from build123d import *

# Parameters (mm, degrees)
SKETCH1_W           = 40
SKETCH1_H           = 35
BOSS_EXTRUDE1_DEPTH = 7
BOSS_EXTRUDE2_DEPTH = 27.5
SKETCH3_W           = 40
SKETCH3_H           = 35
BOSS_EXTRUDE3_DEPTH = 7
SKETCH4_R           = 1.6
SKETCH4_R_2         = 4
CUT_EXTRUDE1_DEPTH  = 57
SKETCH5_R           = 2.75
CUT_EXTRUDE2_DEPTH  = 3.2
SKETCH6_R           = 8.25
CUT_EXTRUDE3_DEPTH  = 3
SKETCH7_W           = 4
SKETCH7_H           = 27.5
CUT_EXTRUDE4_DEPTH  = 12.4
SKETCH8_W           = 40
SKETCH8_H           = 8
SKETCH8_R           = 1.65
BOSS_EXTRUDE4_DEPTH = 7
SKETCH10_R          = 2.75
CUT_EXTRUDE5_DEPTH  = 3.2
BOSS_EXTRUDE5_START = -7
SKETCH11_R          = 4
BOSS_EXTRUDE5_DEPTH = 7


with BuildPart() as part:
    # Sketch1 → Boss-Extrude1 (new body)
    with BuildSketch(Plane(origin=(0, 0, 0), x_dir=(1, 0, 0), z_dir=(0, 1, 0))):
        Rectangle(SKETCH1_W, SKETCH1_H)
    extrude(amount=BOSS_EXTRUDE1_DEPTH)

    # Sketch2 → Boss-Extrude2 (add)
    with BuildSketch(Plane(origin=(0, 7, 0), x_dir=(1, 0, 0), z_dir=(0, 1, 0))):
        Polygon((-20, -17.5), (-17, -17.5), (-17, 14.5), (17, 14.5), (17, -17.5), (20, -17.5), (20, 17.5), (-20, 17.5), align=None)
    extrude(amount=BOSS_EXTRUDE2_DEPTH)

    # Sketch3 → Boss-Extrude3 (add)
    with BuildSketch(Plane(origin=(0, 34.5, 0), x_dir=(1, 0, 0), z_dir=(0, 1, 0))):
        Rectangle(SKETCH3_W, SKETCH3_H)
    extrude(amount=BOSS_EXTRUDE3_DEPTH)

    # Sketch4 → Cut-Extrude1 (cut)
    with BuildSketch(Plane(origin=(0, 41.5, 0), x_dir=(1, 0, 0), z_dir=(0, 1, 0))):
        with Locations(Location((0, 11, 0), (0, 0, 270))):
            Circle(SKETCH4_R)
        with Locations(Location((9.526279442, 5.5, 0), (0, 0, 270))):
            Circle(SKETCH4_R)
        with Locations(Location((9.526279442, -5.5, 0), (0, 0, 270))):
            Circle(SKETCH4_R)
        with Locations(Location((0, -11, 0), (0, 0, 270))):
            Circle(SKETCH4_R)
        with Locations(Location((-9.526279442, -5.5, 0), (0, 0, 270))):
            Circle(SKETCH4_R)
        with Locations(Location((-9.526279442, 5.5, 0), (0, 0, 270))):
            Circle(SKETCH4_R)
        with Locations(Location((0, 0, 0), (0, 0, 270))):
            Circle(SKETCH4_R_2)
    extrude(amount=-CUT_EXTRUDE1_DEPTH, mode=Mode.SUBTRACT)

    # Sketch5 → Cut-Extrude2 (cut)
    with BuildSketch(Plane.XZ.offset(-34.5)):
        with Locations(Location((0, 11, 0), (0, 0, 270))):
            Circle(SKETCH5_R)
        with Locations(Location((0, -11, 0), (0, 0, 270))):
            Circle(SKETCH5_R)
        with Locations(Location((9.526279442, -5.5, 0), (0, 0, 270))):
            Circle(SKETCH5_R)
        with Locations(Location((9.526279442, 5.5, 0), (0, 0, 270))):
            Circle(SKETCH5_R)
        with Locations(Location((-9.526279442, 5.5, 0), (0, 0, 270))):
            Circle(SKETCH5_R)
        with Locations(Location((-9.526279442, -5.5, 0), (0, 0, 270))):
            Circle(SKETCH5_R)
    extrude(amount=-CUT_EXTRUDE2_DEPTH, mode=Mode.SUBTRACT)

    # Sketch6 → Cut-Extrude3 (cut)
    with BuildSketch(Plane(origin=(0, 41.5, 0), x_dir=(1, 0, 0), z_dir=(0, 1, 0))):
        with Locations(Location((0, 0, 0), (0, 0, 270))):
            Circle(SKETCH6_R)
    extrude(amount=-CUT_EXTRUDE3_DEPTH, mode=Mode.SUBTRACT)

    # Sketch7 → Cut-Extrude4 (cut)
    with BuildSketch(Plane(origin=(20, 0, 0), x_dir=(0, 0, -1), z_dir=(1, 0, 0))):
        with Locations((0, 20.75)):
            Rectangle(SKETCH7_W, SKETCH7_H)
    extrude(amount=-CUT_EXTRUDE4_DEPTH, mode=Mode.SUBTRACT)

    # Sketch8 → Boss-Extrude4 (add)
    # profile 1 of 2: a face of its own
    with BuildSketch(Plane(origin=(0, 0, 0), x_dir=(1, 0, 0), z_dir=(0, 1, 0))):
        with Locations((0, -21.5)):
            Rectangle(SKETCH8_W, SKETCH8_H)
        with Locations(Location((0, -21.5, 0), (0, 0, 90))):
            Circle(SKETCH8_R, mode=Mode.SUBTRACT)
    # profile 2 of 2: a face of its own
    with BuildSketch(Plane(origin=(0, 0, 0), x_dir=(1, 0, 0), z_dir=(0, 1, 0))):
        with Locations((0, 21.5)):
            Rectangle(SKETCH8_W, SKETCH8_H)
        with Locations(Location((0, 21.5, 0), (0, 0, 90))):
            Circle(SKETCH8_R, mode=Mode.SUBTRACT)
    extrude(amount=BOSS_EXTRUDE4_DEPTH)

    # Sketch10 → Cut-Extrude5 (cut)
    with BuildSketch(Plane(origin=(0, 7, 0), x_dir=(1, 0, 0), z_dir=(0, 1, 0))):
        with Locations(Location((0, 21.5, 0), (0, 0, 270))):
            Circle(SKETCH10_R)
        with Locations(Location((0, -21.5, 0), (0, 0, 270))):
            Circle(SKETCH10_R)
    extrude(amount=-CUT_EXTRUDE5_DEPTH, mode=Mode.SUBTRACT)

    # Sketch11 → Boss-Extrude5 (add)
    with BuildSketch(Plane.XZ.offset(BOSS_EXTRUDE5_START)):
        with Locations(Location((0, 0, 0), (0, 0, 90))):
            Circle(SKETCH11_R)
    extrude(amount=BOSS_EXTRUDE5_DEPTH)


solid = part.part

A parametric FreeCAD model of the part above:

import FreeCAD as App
import Part
import Sketcher

V = App.Vector


def add_polygon(sketch, points):
    """Adds a closed chain of lines whose ends are joined by coincident constraints."""
    first, n = sketch.GeometryCount, len(points)
    for a, b in zip(points, points[1:] + points[:1]):
        sketch.addGeometry(Part.LineSegment(App.Vector(*a, 0), App.Vector(*b, 0)), False)
    for i in range(n):
        sketch.addConstraint(Sketcher.Constraint("Coincident", first + i, 2, first + (i + 1) % n, 1))

doc = App.newDocument("Part")
body = doc.addObject("PartDesign::Body", "Body")

# Sketch on XZ plane
sketch1 = body.newObject("Sketcher::SketchObject", "Sketch")
sketch1.AttachmentSupport = (doc.getObject("XZ_Plane"), [""])
sketch1.MapMode = "FlatFace"
add_polygon(sketch1, [(-20, -18), (-20, 18), (20, 18), (20, -18)])  # lines 0-3
sketch1.addConstraint([
    Sketcher.Constraint("Vertical", 0),
    Sketcher.Constraint("Horizontal", 1),
    Sketcher.Constraint("Vertical", 2),
    Sketcher.Constraint("Horizontal", 3),
    Sketcher.Constraint("Symmetric", 0, 2, 2, 2, -1, 1),
    Sketcher.Constraint("DistanceX", 1, 1, 1, 2, 40.0),
    Sketcher.Constraint("DistanceY", 0, 1, 0, 2, 35.0),
])
pad1 = body.newObject("PartDesign::Pad", "Pad")
pad1.Profile = sketch1
pad1.Length = 7
pad1.Reversed = True

# Sketch on XZ plane
sketch2 = body.newObject("Sketcher::SketchObject", "Sketch001")
sketch2.AttachmentSupport = (doc.getObject("XZ_Plane"), [""])
sketch2.MapMode = "FlatFace"
sketch2.AttachmentOffset = App.Placement(V(0, 0, -7), App.Rotation())
add_polygon(sketch2, [(-20, 17.5), (-17, 17.5), (-17, -14.5), (17, -14.5), (17, 17.5), (20, 17.5), (20, -17.5), (-20, -17.5)])  # lines 0-7
sketch2.addConstraint([
    Sketcher.Constraint("Horizontal", 0),
    Sketcher.Constraint("Vertical", 1),
    Sketcher.Constraint("Horizontal", 2),
    Sketcher.Constraint("Vertical", 3),
    Sketcher.Constraint("Horizontal", 4),
    Sketcher.Constraint("Vertical", 5),
    Sketcher.Constraint("Horizontal", 6),
    Sketcher.Constraint("Vertical", 7),
    Sketcher.Constraint("Symmetric", 4, 2, 6, 2, -1, 1),
    Sketcher.Constraint("Symmetric", 0, 2, 3, 2, -2),
    Sketcher.Constraint("DistanceX", 0, 1, 0, 2, 3.0),
    Sketcher.Constraint("DistanceX", 2, 1, 2, 2, 34.0),
    Sketcher.Constraint("DistanceY", 1, 2, 1, 1, 32.0),
    Sketcher.Constraint("DistanceY", 5, 2, 5, 1, 35.0),
])
pad2 = body.newObject("PartDesign::Pad", "Pad001")
pad2.Profile = sketch2
pad2.Length = 27.5
pad2.Reversed = True

# Sketch on XZ plane
sketch3 = body.newObject("Sketcher::SketchObject", "Sketch002")
sketch3.AttachmentSupport = (doc.getObject("XZ_Plane"), [""])
sketch3.MapMode = "FlatFace"
sketch3.AttachmentOffset = App.Placement(V(0, 0, -34.5), App.Rotation())
add_polygon(sketch3, [(-20, -18), (-20, 18), (20, 18), (20, -18)])  # lines 0-3
sketch3.addConstraint([
    Sketcher.Constraint("Vertical", 0),
    Sketcher.Constraint("Horizontal", 1),
    Sketcher.Constraint("Vertical", 2),
    Sketcher.Constraint("Horizontal", 3),
    Sketcher.Constraint("Symmetric", 0, 2, 2, 2, -1, 1),
    Sketcher.Constraint("DistanceX", 1, 1, 1, 2, 40.0),
    Sketcher.Constraint("DistanceY", 0, 1, 0, 2, 35.0),
])
pad3 = body.newObject("PartDesign::Pad", "Pad002")
pad3.Profile = sketch3
pad3.Length = 7
pad3.Reversed = True

# Sketch on XZ plane
sketch4 = body.newObject("Sketcher::SketchObject", "Sketch003")
sketch4.AttachmentSupport = (doc.getObject("XZ_Plane"), [""])
sketch4.MapMode = "FlatFace"
sketch4.AttachmentOffset = App.Placement(V(0, 0, -41.5), App.Rotation())
sketch4.addGeometry([
    Part.Circle(V(0, -11, 0), V(0, 0, 1), 1.6),  # 0
    Part.Circle(V(9.5, -5.5, 0), V(0, 0, 1), 1.6),  # 1
    Part.Circle(V(9.5, 5.5, 0), V(0, 0, 1), 1.6),  # 2
    Part.Circle(V(0, 11, 0), V(0, 0, 1), 1.6),  # 3
    Part.Circle(V(-9.5, 5.5, 0), V(0, 0, 1), 1.6),  # 4
    Part.Circle(V(-9.5, -5.5, 0), V(0, 0, 1), 1.6),  # 5
    Part.Circle(V(0, 0, 0), V(0, 0, 1), 4),  # 6
], False)
sketch4.addConstraint([
    Sketcher.Constraint("Coincident", 6, 3, -1, 1),
    Sketcher.Constraint("Equal", 0, 1),
    Sketcher.Constraint("Equal", 1, 2),
    Sketcher.Constraint("Equal", 2, 3),
    Sketcher.Constraint("Equal", 3, 4),
    Sketcher.Constraint("Equal", 4, 5),
    Sketcher.Constraint("Symmetric", 0, 3, 3, 3, -1, 1),
    Sketcher.Constraint("Symmetric", 1, 3, 4, 3, -1, 1),
    Sketcher.Constraint("Symmetric", 2, 3, 5, 3, -1, 1),
    Sketcher.Constraint("Symmetric", 2, 3, 4, 3, -2),
    Sketcher.Constraint("PointOnObject", 0, 3, -2),
    Sketcher.Constraint("Diameter", 6, 8.0),
    Sketcher.Constraint("Diameter", 0, 3.2),
    Sketcher.Constraint("DistanceY", 0, 3, -1, 1, 11.0),
    Sketcher.Constraint("DistanceY", 1, 3, 2, 3, 11.0),
    Sketcher.Constraint("DistanceX", -1, 1, 1, 3, 9.526279),
])
pocket1 = body.newObject("PartDesign::Pocket", "Pocket")
pocket1.Profile = sketch4
pocket1.Length = 57
pocket1.Reversed = True

# Sketch on XZ plane
sketch5 = body.newObject("Sketcher::SketchObject", "Sketch004")
sketch5.AttachmentSupport = (doc.getObject("XZ_Plane"), [""])
sketch5.MapMode = "FlatFace"
sketch5.AttachmentOffset = App.Placement(V(0, 0, -34.5), App.Rotation())
sketch5.addGeometry([
    Part.Circle(V(0, 11, 0), V(0, 0, 1), 2.8),  # 0
    Part.Circle(V(0, -11, 0), V(0, 0, 1), 2.8),  # 1
    Part.Circle(V(9.5, -5.5, 0), V(0, 0, 1), 2.8),  # 2
    Part.Circle(V(9.5, 5.5, 0), V(0, 0, 1), 2.8),  # 3
    Part.Circle(V(-9.5, 5.5, 0), V(0, 0, 1), 2.8),  # 4
    Part.Circle(V(-9.5, -5.5, 0), V(0, 0, 1), 2.8),  # 5
], False)
sketch5.addConstraint([
    Sketcher.Constraint("Equal", 0, 1),
    Sketcher.Constraint("Equal", 1, 2),
    Sketcher.Constraint("Equal", 2, 3),
    Sketcher.Constraint("Equal", 3, 4),
    Sketcher.Constraint("Equal", 4, 5),
    Sketcher.Constraint("Symmetric", 0, 3, 1, 3, -1, 1),
    Sketcher.Constraint("Symmetric", 2, 3, 4, 3, -1, 1),
    Sketcher.Constraint("Symmetric", 3, 3, 5, 3, -1, 1),
    Sketcher.Constraint("Symmetric", 3, 3, 4, 3, -2),
    Sketcher.Constraint("PointOnObject", 0, 3, -2),
    Sketcher.Constraint("Diameter", 0, 5.5),
    Sketcher.Constraint("DistanceY", -1, 1, 0, 3, 11.0),
    Sketcher.Constraint("DistanceY", 2, 3, 3, 3, 11.0),
    Sketcher.Constraint("DistanceX", -1, 1, 2, 3, 9.526279),
])
pocket2 = body.newObject("PartDesign::Pocket", "Pocket001")
pocket2.Profile = sketch5
pocket2.Length = 3.2

# Sketch on XZ plane
sketch6 = body.newObject("Sketcher::SketchObject", "Sketch005")
sketch6.AttachmentSupport = (doc.getObject("XZ_Plane"), [""])
sketch6.MapMode = "FlatFace"
sketch6.AttachmentOffset = App.Placement(V(0, 0, -41.5), App.Rotation())
sketch6.addGeometry(Part.Circle(V(0, 0, 0), V(0, 0, 1), 8), False)
sketch6.addConstraint([
    Sketcher.Constraint("Coincident", 0, 3, -1, 1),
    Sketcher.Constraint("Diameter", 0, 16.5),
])
pocket3 = body.newObject("PartDesign::Pocket", "Pocket002")
pocket3.Profile = sketch6
pocket3.Length = 3
pocket3.Reversed = True

# Sketch on YZ plane
sketch7 = body.newObject("Sketcher::SketchObject", "Sketch006")
sketch7.AttachmentSupport = (doc.getObject("YZ_Plane"), [""])
sketch7.MapMode = "FlatFace"
sketch7.AttachmentOffset = App.Placement(V(0, 0, 20), App.Rotation())
add_polygon(sketch7, [(34.5, 2), (7, 2), (7, -2), (34.5, -2)])  # lines 0-3
sketch7.addConstraint([
    Sketcher.Constraint("Horizontal", 0),
    Sketcher.Constraint("Vertical", 1),
    Sketcher.Constraint("Horizontal", 2),
    Sketcher.Constraint("Vertical", 3),
    Sketcher.Constraint("DistanceY", 1, 2, 1, 1, 4.0),
    Sketcher.Constraint("DistanceX", 0, 2, 0, 1, 27.5),
    Sketcher.Constraint("DistanceX", -1, 1, 0, 2, 7.0),
    Sketcher.Constraint("DistanceY", -1, 1, 0, 2, 2.0),
])
pocket4 = body.newObject("PartDesign::Pocket", "Pocket003")
pocket4.Profile = sketch7
pocket4.Length = 12.4

# Sketch on XZ plane
sketch8 = body.newObject("Sketcher::SketchObject", "Sketch007")
sketch8.AttachmentSupport = (doc.getObject("XZ_Plane"), [""])
sketch8.MapMode = "FlatFace"
add_polygon(sketch8, [(-20, 17.5), (-20, 25.5), (20, 25.5), (20, 17.5)])  # lines 0-3
sketch8.addGeometry(Part.Circle(V(0, 21.5, 0), V(0, 0, 1), 1.6), False)  # 4
add_polygon(sketch8, [(-20, -25.5), (-20, -17.5), (20, -17.5), (20, -25.5)])  # lines 5-8
sketch8.addGeometry(Part.Circle(V(0, -21.5, 0), V(0, 0, 1), 1.6), False)  # 9
sketch8.addConstraint([
    Sketcher.Constraint("Vertical", 0),
    Sketcher.Constraint("Horizontal", 1),
    Sketcher.Constraint("Vertical", 2),
    Sketcher.Constraint("Horizontal", 3),
    Sketcher.Constraint("Vertical", 5),
    Sketcher.Constraint("Horizontal", 6),
    Sketcher.Constraint("Vertical", 7),
    Sketcher.Constraint("Horizontal", 8),
    Sketcher.Constraint("Equal", 4, 9),
    Sketcher.Constraint("Symmetric", 4, 3, 9, 3, -1, 1),
    Sketcher.Constraint("Symmetric", 2, 2, 5, 2, -1, 1),
    Sketcher.Constraint("Symmetric", 0, 2, 7, 2, -1, 1),
    Sketcher.Constraint("PointOnObject", 4, 3, -2),
    Sketcher.Constraint("Vertical", 3, 2, 5, 2),
    Sketcher.Constraint("Diameter", 4, 3.3),
    Sketcher.Constraint("DistanceX", 1, 1, 1, 2, 40.0),
    Sketcher.Constraint("DistanceY", 0, 1, 0, 2, 8.0),
    Sketcher.Constraint("DistanceY", 9, 3, 4, 3, 43.0),
    Sketcher.Constraint("DistanceY", 4, 3, 0, 2, 4.0),
])
pad4 = body.newObject("PartDesign::Pad", "Pad003")
pad4.Profile = sketch8
pad4.Length = 7
pad4.Reversed = True

# Sketch on XZ plane
sketch9 = body.newObject("Sketcher::SketchObject", "Sketch008")
sketch9.AttachmentSupport = (doc.getObject("XZ_Plane"), [""])
sketch9.MapMode = "FlatFace"
sketch9.AttachmentOffset = App.Placement(V(0, 0, -7), App.Rotation())
sketch9.addGeometry([
    Part.Circle(V(0, -21.5, 0), V(0, 0, 1), 2.8),
    Part.Circle(V(0, 21.5, 0), V(0, 0, 1), 2.8),
], False)
sketch9.addConstraint([
    Sketcher.Constraint("Equal", 0, 1),
    Sketcher.Constraint("Symmetric", 0, 3, 1, 3, -1, 1),
    Sketcher.Constraint("PointOnObject", 0, 3, -2),
    Sketcher.Constraint("Diameter", 0, 5.5),
    Sketcher.Constraint("DistanceY", 0, 3, 1, 3, 43.0),
])
pocket5 = body.newObject("PartDesign::Pocket", "Pocket004")
pocket5.Profile = sketch9
pocket5.Length = 3.2
pocket5.Reversed = True

# Sketch on XZ plane
sketch10 = body.newObject("Sketcher::SketchObject", "Sketch009")
sketch10.AttachmentSupport = (doc.getObject("XZ_Plane"), [""])
sketch10.MapMode = "FlatFace"
sketch10.AttachmentOffset = App.Placement(V(0, 0, -7), App.Rotation())
sketch10.addGeometry(Part.Circle(V(0, 0, 0), V(0, 0, 1), 4), False)
sketch10.addConstraint([
    Sketcher.Constraint("Coincident", 0, 3, -1, 1),
    Sketcher.Constraint("Diameter", 0, 8.0),
])
pad5 = body.newObject("PartDesign::Pad", "Pad004")
pad5.Profile = sketch10
pad5.Length = 7

doc.recompute()
